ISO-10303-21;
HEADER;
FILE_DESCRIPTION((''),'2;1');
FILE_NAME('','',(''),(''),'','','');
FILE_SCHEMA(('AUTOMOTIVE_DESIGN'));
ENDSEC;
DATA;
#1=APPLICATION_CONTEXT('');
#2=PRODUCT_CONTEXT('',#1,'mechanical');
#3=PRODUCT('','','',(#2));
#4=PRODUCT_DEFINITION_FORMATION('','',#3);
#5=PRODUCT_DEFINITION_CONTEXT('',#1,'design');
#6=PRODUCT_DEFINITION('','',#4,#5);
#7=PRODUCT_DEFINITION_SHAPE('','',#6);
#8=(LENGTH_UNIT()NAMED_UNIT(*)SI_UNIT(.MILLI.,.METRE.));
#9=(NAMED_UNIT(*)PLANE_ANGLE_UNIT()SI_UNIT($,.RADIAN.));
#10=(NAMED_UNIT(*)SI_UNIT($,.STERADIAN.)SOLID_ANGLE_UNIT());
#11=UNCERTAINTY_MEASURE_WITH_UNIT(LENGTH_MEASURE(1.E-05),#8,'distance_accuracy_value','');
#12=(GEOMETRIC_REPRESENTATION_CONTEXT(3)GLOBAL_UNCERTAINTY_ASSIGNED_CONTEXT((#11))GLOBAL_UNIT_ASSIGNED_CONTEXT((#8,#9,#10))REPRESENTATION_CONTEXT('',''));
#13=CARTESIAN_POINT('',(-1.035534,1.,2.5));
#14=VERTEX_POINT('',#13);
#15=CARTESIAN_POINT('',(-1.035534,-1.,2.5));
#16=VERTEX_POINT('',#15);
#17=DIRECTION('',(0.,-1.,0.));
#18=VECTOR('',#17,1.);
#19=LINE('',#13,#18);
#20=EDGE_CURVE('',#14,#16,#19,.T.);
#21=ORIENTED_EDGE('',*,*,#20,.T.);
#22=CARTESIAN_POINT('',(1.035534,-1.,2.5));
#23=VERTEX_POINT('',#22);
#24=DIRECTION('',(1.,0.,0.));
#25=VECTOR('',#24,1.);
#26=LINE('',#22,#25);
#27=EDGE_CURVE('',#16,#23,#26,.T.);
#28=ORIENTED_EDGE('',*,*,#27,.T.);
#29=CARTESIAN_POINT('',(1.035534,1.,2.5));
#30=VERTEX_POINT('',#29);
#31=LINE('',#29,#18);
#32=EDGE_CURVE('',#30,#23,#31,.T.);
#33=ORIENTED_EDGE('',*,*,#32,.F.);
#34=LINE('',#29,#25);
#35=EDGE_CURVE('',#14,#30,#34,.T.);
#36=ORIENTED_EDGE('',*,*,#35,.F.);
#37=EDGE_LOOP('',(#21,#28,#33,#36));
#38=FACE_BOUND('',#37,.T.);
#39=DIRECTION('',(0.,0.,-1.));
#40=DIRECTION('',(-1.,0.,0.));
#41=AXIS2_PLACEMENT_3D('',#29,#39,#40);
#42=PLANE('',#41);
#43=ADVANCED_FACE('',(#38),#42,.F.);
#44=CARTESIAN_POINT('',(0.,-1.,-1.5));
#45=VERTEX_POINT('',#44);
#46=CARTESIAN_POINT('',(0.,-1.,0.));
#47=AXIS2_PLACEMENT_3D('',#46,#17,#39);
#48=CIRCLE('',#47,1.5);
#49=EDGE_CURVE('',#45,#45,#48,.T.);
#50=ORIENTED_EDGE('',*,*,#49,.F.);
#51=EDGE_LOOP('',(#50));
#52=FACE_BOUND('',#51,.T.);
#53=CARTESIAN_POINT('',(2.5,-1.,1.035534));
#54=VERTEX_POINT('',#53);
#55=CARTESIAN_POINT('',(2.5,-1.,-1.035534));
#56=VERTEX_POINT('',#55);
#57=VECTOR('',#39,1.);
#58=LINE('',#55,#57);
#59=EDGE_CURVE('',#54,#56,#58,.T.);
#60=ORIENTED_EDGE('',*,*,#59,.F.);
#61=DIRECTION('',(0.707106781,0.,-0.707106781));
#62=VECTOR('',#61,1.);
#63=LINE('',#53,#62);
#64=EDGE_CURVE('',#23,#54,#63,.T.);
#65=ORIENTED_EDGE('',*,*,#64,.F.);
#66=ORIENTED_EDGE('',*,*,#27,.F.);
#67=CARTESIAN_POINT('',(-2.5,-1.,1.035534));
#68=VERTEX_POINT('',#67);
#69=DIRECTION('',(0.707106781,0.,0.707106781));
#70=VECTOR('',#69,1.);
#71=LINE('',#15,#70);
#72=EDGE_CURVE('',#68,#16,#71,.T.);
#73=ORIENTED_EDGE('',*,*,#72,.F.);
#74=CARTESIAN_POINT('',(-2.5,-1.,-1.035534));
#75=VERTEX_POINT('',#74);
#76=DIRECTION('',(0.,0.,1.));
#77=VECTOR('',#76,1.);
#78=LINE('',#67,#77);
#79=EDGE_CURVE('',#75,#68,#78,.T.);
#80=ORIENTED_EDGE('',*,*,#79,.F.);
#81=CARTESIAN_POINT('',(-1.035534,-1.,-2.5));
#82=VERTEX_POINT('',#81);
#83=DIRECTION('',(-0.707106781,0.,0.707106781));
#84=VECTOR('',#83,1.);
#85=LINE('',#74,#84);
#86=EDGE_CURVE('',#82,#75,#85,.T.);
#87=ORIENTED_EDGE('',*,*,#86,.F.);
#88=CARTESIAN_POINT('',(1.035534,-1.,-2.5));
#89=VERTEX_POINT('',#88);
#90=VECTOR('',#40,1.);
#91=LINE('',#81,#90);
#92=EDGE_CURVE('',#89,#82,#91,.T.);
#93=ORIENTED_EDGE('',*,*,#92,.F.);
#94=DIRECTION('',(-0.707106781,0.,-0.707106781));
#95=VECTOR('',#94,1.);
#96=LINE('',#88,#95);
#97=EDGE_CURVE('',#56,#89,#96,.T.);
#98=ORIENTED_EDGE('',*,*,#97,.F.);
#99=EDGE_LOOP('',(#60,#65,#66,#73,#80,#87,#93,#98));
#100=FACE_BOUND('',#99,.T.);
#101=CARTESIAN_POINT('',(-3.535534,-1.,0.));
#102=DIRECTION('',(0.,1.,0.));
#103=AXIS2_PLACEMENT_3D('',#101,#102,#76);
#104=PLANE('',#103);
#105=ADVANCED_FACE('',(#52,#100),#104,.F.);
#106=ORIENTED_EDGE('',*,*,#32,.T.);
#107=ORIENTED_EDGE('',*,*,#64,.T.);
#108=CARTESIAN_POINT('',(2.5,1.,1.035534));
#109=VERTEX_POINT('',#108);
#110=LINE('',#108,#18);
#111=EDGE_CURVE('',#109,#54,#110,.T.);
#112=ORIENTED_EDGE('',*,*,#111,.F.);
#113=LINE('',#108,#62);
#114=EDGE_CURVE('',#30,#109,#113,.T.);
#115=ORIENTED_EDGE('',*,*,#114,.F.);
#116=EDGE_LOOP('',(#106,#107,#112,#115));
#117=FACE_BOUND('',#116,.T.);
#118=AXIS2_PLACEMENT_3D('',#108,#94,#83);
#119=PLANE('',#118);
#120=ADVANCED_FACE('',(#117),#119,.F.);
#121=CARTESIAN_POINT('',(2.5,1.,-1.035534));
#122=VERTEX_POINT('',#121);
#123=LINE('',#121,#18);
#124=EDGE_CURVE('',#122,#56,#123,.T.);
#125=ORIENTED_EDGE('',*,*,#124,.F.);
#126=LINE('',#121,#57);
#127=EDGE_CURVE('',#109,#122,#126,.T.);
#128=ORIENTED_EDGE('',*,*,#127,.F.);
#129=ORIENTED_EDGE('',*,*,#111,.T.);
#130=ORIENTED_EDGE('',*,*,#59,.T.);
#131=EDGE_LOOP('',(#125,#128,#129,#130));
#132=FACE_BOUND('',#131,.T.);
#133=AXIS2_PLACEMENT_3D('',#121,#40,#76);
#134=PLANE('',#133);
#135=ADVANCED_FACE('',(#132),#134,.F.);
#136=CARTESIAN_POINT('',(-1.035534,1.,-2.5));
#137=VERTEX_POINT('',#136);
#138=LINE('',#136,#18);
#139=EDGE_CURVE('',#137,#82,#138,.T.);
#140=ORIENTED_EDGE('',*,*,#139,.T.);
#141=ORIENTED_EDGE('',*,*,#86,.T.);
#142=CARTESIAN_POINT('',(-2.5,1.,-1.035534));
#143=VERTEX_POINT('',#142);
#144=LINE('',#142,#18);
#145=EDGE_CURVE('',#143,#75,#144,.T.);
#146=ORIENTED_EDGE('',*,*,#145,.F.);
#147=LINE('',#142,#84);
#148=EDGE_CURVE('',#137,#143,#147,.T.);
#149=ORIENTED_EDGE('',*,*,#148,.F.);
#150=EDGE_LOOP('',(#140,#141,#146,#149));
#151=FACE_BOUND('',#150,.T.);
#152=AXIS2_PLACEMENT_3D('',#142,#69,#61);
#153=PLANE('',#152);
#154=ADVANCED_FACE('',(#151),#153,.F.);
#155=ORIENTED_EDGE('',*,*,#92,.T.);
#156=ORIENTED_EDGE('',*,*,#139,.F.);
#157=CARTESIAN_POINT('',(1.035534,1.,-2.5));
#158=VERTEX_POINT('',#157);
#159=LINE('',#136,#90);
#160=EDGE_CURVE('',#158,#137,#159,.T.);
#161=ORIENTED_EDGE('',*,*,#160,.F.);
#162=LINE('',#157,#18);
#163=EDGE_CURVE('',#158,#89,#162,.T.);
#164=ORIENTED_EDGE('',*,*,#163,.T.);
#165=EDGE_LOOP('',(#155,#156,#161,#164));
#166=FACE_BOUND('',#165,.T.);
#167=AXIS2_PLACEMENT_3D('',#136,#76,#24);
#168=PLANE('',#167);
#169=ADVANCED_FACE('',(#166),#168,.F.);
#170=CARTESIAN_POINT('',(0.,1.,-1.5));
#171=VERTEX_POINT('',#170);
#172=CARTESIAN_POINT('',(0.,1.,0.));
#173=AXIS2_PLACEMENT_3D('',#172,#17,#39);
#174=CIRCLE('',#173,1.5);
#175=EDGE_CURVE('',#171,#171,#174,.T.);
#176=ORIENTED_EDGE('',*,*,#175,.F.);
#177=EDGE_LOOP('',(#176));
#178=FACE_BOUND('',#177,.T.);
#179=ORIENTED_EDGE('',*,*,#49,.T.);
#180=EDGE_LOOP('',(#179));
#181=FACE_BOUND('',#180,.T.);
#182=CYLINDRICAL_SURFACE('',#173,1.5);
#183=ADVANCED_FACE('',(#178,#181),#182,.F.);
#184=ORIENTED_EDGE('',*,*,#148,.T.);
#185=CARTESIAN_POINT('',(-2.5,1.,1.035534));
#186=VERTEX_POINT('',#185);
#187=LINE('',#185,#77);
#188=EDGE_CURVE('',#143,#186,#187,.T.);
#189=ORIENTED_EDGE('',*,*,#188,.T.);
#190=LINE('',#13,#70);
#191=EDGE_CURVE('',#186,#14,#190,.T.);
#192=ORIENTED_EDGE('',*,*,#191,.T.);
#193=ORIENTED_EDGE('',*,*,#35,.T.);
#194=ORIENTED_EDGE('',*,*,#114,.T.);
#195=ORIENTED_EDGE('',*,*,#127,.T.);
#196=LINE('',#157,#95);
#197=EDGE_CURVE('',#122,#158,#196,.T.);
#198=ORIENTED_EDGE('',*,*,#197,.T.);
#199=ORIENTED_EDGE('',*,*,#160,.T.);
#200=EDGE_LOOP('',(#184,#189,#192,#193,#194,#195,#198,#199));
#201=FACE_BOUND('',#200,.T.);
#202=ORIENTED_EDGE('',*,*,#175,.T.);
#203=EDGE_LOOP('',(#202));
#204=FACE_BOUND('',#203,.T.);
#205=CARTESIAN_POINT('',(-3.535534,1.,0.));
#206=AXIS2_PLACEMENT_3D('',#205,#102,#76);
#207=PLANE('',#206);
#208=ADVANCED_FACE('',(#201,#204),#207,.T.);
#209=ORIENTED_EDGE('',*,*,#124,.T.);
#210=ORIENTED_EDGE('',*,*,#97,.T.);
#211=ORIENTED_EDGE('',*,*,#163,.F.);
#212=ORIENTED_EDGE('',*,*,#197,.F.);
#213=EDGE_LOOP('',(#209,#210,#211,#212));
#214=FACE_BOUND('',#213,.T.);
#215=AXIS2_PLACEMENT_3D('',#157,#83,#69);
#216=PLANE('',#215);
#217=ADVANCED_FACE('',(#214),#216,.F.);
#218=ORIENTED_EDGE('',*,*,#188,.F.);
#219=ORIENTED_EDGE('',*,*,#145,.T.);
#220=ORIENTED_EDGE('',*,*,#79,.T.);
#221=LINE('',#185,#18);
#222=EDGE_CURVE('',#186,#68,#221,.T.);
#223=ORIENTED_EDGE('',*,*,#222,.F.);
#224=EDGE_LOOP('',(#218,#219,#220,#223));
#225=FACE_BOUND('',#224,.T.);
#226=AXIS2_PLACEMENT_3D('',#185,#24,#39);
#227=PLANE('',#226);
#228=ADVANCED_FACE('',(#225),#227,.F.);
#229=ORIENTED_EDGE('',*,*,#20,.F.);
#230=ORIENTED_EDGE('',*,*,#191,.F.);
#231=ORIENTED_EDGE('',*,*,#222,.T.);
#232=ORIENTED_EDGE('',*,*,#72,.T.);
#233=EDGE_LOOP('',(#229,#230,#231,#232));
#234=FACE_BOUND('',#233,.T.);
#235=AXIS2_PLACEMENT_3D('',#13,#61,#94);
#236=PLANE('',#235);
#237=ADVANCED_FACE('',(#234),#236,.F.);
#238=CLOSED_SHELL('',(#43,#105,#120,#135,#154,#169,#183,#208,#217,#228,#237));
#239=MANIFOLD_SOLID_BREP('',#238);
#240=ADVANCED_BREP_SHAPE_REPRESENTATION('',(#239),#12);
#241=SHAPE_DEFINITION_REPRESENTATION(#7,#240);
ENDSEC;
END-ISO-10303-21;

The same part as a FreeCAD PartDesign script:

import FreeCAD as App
import Part
import Sketcher

V = App.Vector
Q = App.Units.Quantity


def add_polygon(sketch, points):
    """Adds a closed chain of lines whose ends are joined by coincident constraints."""
    first, n = sketch.GeometryCount, len(points)
    for a, b in zip(points, points[1:] + points[:1]):
        sketch.addGeometry(Part.LineSegment(App.Vector(*a, 0), App.Vector(*b, 0)), False)
    for i in range(n):
        sketch.addConstraint(Sketcher.Constraint("Coincident", first + i, 2, first + (i + 1) % n, 1))

doc = App.newDocument("Part")
body = doc.addObject("PartDesign::Body", "Body")

# Sketch on XZ plane
sketch1 = doc.addObject("Sketcher::SketchObject", "Sketch")
body.addObject(sketch1)
sketch1.AttachmentSupport = (doc.XZ_Plane, [""])
sketch1.MapMode = "FlatFace"
add_polygon(sketch1, [(1, -2.5), (-1, -2.5), (-2.5, -1), (-2.5, 1), (-1, 2.5), (1, 2.5), (2.5, 1), (2.5, -1)])  # lines 0-7
sketch1.addConstraint(Sketcher.Constraint("Horizontal", 0))
sketch1.addConstraint(Sketcher.Constraint("Vertical", 2))
sketch1.addConstraint(Sketcher.Constraint("Horizontal", 4))
sketch1.addConstraint(Sketcher.Constraint("Vertical", 6))
sketch1.addConstraint(Sketcher.Constraint("Symmetric", 0, 2, 4, 2, -1, 1))
sketch1.addConstraint(Sketcher.Constraint("Symmetric", 1, 2, 5, 2, -1, 1))
sketch1.addConstraint(Sketcher.Constraint("Perpendicular", 1, 3))
sketch1.addConstraint(Sketcher.Constraint("Perpendicular", 5, 7))
sketch1.addConstraint(Sketcher.Constraint("Horizontal", 2, 2, 5, 2))
sketch1.addConstraint(Sketcher.Constraint("Horizontal", 1, 2, 6, 2))
sketch1.addConstraint(Sketcher.Constraint("Vertical", 0, 2, 3, 2))
sketch1.addConstraint(Sketcher.Constraint("Equal", 4, 2))
sketch1.addConstraint(Sketcher.Constraint("DistanceY", 0, 2, 3, 2, Q("5 mm")))
sketch1.addConstraint(Sketcher.Constraint("DistanceX", 0, 2, 0, 1, Q("2.071068 mm")))
pad1 = doc.addObject("PartDesign::Pad", "Pad")
body.addObject(pad1)
pad1.Profile = sketch1
pad1.Length = 2
pad1.Midplane = True

# Sketch on XZ plane
sketch2 = doc.addObject("Sketcher::SketchObject", "Sketch001")
body.addObject(sketch2)
sketch2.AttachmentSupport = (doc.XZ_Plane, [""])
sketch2.MapMode = "FlatFace"
sketch2.AttachmentOffset = App.Placement(V(0, 0, 1), App.Rotation())
sketch2.addGeometry(Part.Circle(V(0, 0, 0), V(0, 0, 1), 1.5), False)
sketch2.addConstraint(Sketcher.Constraint("Coincident", 0, 3, -1, 1))
sketch2.addConstraint(Sketcher.Constraint("Diameter", 0, Q("3 mm")))
pocket1 = doc.addObject("PartDesign::Pocket", "Pocket")
body.addObject(pocket1)
pocket1.Profile = sketch2
pocket1.Type = "ThroughAll"

doc.recompute()
